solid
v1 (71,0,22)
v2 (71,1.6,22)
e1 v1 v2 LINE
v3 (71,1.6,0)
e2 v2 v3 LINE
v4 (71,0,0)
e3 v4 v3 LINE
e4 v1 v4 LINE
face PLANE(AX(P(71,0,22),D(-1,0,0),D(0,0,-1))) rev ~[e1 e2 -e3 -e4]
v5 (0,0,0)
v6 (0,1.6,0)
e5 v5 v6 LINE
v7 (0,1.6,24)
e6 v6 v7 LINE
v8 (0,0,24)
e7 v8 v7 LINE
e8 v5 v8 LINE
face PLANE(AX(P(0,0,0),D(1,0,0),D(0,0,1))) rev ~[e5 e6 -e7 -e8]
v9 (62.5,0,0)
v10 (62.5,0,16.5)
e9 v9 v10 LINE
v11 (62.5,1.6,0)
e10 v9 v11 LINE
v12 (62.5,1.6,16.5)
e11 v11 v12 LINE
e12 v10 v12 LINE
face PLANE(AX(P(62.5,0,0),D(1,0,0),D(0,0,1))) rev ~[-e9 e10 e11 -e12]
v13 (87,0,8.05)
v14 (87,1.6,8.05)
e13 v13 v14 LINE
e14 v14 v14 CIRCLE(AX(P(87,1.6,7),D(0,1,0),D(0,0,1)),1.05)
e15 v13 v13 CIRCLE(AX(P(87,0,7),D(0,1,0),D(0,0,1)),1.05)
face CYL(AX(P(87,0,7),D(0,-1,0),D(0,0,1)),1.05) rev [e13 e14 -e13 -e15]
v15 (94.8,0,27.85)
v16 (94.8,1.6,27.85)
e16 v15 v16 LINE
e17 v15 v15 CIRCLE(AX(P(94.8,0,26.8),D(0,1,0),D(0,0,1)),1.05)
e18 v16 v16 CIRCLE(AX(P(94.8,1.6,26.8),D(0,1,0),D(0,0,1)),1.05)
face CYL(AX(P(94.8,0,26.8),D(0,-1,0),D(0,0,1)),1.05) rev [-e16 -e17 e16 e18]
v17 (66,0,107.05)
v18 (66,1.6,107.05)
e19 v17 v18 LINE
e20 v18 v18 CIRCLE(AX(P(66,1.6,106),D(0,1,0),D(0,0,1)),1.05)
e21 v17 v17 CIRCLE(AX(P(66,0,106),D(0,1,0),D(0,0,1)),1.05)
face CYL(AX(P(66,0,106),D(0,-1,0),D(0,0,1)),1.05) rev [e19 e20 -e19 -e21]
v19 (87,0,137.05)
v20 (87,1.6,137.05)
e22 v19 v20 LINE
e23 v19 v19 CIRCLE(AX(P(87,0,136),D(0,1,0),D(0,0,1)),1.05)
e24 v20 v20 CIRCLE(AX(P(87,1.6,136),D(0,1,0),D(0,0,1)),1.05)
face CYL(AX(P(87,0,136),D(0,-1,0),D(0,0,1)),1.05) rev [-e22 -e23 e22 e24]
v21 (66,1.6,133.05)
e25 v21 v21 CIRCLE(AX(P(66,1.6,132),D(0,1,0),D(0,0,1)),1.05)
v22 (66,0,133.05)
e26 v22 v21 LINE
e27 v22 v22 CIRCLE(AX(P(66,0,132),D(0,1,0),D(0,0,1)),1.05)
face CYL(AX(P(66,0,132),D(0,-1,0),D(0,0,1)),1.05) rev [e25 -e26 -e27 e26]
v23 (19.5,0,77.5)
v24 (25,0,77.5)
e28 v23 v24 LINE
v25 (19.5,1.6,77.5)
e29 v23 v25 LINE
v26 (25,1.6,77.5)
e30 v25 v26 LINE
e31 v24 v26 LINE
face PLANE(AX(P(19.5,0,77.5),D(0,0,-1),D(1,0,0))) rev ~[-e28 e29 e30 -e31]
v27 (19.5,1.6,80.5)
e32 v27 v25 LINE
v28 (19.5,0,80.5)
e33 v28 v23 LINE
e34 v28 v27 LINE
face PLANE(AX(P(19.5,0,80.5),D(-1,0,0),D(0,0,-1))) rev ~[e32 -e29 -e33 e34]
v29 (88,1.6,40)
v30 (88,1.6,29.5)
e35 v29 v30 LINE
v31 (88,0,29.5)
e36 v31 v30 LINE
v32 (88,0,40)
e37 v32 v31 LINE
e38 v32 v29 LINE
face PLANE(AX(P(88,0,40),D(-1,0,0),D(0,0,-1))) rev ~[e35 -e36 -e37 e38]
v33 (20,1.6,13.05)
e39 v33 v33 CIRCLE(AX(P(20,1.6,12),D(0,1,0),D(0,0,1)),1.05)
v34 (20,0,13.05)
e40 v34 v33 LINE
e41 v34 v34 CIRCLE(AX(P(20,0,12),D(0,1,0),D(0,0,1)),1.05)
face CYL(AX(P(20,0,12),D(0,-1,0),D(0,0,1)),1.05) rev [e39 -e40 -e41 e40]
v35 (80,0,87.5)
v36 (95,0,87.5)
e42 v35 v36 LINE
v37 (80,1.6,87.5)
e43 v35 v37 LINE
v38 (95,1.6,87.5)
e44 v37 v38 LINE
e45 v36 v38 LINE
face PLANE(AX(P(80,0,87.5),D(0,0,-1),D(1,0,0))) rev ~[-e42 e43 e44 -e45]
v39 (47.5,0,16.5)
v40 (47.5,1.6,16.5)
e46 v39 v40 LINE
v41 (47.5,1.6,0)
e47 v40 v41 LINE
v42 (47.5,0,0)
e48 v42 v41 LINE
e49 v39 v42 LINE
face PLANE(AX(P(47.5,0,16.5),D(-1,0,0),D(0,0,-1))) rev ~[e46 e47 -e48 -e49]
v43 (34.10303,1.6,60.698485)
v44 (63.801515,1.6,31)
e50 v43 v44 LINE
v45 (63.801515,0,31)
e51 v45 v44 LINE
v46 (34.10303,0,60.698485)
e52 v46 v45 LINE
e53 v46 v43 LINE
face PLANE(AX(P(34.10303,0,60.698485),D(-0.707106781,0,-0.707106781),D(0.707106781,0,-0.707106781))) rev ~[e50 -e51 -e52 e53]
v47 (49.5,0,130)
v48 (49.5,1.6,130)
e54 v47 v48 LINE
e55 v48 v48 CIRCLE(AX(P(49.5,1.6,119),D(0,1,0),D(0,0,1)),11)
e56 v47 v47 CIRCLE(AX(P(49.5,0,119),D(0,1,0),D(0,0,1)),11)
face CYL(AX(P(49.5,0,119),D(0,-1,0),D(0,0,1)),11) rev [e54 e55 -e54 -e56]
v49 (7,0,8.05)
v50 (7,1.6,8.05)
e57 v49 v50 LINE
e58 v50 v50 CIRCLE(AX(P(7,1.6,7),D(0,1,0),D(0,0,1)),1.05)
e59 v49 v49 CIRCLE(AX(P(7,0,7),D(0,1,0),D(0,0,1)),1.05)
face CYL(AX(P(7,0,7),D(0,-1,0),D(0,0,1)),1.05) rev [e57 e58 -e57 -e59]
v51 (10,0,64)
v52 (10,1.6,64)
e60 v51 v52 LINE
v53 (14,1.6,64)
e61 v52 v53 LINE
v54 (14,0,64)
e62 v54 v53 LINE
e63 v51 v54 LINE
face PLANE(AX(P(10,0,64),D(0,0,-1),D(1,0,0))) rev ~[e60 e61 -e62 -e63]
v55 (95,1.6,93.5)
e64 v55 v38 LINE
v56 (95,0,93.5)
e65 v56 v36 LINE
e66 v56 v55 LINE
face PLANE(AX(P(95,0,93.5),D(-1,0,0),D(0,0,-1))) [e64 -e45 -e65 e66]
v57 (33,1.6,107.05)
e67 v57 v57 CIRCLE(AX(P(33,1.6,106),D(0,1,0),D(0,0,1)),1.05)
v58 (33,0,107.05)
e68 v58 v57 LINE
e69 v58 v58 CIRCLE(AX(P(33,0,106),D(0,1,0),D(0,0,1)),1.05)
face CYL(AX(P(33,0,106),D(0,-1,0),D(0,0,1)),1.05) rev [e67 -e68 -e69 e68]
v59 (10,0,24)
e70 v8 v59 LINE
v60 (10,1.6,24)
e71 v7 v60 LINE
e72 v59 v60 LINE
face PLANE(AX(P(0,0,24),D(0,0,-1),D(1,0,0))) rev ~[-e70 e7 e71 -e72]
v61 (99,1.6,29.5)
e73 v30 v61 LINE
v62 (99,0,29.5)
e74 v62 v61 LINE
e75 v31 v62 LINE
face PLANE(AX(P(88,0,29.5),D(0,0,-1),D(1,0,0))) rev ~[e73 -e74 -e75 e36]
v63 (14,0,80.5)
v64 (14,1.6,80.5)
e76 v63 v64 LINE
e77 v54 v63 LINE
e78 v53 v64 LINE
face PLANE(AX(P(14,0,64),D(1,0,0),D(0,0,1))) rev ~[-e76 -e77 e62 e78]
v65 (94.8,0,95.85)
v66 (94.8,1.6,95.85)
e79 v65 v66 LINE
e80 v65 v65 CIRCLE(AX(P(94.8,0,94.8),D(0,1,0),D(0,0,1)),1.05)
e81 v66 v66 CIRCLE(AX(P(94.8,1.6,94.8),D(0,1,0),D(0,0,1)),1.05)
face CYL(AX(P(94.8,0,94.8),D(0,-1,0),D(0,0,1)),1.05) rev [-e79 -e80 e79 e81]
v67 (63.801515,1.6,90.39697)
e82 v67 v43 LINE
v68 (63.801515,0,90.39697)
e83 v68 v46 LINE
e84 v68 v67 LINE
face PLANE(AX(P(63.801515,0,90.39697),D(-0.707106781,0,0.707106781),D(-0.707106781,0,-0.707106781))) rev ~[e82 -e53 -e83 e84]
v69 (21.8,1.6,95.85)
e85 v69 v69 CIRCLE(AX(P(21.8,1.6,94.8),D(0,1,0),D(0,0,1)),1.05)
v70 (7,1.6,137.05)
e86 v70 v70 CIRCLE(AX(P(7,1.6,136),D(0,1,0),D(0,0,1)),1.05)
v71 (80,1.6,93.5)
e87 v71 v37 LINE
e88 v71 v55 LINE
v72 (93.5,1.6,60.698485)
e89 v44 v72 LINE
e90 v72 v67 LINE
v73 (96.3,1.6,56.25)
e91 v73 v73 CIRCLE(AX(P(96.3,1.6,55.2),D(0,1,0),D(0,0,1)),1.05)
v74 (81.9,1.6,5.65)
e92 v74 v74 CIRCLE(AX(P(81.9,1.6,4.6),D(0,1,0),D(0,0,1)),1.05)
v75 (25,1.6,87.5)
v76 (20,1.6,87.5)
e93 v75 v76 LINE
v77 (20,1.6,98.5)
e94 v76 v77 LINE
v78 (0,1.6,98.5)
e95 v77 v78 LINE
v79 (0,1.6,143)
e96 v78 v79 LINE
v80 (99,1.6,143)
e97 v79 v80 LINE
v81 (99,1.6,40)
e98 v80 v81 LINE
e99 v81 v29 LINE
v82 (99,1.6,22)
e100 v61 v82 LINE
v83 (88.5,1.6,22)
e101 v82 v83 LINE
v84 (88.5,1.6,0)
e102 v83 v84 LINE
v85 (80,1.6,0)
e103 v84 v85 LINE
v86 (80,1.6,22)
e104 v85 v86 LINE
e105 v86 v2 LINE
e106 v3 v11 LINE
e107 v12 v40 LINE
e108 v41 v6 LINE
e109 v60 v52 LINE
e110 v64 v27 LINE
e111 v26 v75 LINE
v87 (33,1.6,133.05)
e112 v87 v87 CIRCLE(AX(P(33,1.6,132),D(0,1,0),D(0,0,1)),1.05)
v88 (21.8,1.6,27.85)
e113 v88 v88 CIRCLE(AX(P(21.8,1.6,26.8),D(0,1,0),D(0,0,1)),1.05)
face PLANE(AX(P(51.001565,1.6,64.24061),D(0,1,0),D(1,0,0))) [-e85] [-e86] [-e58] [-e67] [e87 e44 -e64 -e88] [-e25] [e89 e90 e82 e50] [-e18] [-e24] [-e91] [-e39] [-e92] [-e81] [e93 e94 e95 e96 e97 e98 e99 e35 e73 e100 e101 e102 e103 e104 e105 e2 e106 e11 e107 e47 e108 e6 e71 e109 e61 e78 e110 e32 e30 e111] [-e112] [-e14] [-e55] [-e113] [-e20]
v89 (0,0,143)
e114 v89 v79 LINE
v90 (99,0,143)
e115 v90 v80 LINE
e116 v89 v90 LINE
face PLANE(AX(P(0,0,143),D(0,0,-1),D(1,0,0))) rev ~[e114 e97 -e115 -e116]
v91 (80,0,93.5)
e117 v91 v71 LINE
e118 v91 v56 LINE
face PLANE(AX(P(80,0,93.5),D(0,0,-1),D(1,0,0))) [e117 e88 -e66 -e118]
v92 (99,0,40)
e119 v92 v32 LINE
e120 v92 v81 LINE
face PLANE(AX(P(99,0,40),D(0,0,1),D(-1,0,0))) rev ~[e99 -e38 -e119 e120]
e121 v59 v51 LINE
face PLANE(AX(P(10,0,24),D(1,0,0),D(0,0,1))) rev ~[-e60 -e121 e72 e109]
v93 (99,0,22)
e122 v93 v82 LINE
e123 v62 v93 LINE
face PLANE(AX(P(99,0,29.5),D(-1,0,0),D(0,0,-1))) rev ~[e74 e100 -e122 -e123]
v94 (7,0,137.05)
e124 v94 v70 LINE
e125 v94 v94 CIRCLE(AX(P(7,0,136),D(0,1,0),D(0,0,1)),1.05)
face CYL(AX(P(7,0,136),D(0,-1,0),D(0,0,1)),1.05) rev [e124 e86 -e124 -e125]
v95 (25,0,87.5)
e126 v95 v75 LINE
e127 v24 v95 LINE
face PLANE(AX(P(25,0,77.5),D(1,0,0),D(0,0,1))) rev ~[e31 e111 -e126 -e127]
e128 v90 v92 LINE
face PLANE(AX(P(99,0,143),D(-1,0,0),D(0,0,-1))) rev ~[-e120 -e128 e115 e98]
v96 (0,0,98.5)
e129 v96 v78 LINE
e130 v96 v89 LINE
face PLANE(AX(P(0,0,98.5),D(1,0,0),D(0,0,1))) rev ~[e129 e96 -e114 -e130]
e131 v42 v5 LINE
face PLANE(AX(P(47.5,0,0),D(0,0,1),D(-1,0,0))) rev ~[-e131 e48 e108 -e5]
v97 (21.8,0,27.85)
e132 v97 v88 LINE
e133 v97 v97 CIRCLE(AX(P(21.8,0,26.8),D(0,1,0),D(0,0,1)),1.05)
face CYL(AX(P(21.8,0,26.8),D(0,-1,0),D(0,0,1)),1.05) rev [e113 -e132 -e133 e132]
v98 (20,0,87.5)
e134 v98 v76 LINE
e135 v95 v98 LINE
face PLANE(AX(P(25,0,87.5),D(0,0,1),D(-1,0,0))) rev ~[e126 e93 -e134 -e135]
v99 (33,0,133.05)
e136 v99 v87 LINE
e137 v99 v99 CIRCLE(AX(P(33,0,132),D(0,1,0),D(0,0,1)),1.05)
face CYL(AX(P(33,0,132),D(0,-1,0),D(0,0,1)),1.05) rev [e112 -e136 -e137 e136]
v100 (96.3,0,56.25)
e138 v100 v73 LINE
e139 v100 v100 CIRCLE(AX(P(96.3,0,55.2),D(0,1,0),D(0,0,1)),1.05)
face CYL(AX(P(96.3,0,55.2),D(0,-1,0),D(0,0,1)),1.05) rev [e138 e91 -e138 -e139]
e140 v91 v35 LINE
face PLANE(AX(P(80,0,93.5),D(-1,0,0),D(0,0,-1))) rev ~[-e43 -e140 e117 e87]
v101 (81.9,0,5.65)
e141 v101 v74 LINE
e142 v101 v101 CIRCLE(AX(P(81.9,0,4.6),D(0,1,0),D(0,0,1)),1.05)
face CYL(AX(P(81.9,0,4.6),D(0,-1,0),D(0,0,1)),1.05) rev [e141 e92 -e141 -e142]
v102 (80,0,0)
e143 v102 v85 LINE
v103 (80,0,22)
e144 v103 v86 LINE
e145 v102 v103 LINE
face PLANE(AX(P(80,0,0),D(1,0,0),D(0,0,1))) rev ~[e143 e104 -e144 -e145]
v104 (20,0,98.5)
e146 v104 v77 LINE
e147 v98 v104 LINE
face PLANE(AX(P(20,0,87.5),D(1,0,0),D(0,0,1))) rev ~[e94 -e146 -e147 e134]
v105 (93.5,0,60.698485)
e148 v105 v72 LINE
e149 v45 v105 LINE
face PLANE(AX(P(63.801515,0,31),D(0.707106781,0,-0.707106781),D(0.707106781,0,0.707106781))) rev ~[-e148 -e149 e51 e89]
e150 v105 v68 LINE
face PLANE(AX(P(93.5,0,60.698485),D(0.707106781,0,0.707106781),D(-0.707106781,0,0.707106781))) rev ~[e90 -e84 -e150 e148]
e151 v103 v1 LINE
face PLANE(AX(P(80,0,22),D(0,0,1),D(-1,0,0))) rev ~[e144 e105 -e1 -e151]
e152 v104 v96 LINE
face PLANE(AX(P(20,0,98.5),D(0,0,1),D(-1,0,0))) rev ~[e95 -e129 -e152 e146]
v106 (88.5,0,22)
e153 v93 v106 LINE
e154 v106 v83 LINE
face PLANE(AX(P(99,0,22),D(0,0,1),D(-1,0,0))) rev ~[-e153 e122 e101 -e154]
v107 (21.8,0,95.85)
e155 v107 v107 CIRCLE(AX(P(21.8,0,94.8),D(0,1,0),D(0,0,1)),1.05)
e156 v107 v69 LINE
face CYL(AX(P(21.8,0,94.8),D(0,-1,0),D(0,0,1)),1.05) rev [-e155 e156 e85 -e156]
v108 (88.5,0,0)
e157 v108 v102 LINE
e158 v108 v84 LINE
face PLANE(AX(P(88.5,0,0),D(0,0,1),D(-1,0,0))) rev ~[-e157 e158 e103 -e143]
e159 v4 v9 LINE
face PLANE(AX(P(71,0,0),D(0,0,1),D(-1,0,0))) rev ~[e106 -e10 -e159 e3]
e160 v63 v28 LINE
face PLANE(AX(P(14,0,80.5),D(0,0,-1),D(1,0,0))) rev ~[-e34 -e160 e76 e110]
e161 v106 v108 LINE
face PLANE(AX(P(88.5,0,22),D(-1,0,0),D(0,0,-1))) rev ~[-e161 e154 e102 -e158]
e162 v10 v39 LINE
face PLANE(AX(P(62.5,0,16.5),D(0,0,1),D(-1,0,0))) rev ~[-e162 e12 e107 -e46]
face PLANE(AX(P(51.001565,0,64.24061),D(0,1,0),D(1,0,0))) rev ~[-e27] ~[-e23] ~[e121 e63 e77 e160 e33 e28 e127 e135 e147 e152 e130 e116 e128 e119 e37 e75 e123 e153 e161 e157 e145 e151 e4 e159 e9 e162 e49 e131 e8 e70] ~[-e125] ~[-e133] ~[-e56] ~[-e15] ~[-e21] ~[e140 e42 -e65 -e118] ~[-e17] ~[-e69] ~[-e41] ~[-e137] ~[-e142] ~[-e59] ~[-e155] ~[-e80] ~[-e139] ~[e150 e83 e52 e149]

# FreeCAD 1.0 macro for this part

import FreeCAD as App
import Part
import Sketcher
from FreeCAD import Vector
Q = App.Units.Quantity


def add_polygon(sketch, points):
    """Adds a closed chain of lines whose ends are joined by coincident constraints."""
    first, n = sketch.GeometryCount, len(points)
    for a, b in zip(points, points[1:] + points[:1]):
        sketch.addGeometry(Part.LineSegment(App.Vector(*a, 0), App.Vector(*b, 0)), False)
    for i in range(n):
        sketch.addConstraint(Sketcher.Constraint("Coincident", first + i, 2, first + (i + 1) % n, 1))

doc = App.newDocument("Part")
body = doc.addObject("PartDesign::Body", "Body")

sketch1 = body.newObject("Sketcher::SketchObject", "Sketch")
sketch1.AttachmentSupport = (doc.getObject("XZ_Plane"), [""])
sketch1.MapMode = "FlatFace"
add_polygon(sketch1, [(47.5, 0), (0, 0), (0, 24), (10, 24), (10, 64), (14, 64), (14, 80.5), (19.5, 80.5), (19.5, 77.5), (25, 77.5), (25, 87.5), (20, 87.5), (20, 98.5), (0, 98.5), (0, 143), (99, 143), (99, 40), (88, 40), (88, 29.5), (99, 29.5), (99, 22), (88.5, 22), (88.5, 0), (80, 0), (80, 22), (71, 22), (71, 0), (62.5, 0), (62.5, 16.5), (47.5, 16.5)])
sketch1.addGeometry(Part.Circle(Vector(7, 136, 0), Vector(0, 0, 1), 1.1), False)
sketch1.addGeometry(Part.Circle(Vector(33, 132, 0), Vector(0, 0, 1), 1.1), False)
sketch1.addGeometry(Part.Circle(Vector(33, 106, 0), Vector(0, 0, 1), 1.1), False)
sketch1.addGeometry(Part.Circle(Vector(49.5, 119, 0), Vector(0, 0, 1), 11), False)
sketch1.addGeometry(Part.Circle(Vector(21.8, 94.8, 0), Vector(0, 0, 1), 1.1), False)
sketch1.addGeometry(Part.Circle(Vector(66, 132, 0), Vector(0, 0, 1), 1.1), False)
sketch1.addGeometry(Part.Circle(Vector(66, 106, 0), Vector(0, 0, 1), 1.1), False)
sketch1.addGeometry(Part.Circle(Vector(87, 136, 0), Vector(0, 0, 1), 1.1), False)
add_polygon(sketch1, [(95, 93.5), (80, 93.5), (80, 87.5), (95, 87.5)])
sketch1.addGeometry(Part.Circle(Vector(94.8, 94.8, 0), Vector(0, 0, 1), 1.1), False)
sketch1.addGeometry(Part.Circle(Vector(21.8, 26.8, 0), Vector(0, 0, 1), 1.1), False)
sketch1.addGeometry(Part.Circle(Vector(7, 7, 0), Vector(0, 0, 1), 1.1), False)
sketch1.addGeometry(Part.Circle(Vector(20, 12, 0), Vector(0, 0, 1), 1.1), False)
add_polygon(sketch1, [(63.8, 90.4), (34.1, 60.7), (63.8, 31), (93.5, 60.7)])
sketch1.addGeometry(Part.Circle(Vector(96.3, 55.2, 0), Vector(0, 0, 1), 1.1), False)
sketch1.addGeometry(Part.Circle(Vector(94.8, 26.8, 0), Vector(0, 0, 1), 1.1), False)
sketch1.addGeometry(Part.Circle(Vector(81.9, 4.6, 0), Vector(0, 0, 1), 1.1), False)
sketch1.addGeometry(Part.Circle(Vector(87, 7, 0), Vector(0, 0, 1), 1.1), False)
sketch1.addConstraint(Sketcher.Constraint("Horizontal", 0))
sketch1.addConstraint(Sketcher.Constraint("Vertical", 1))
sketch1.addConstraint(Sketcher.Constraint("Horizontal", 2))
sketch1.addConstraint(Sketcher.Constraint("Vertical", 3))
sketch1.addConstraint(Sketcher.Constraint("Horizontal", 4))
sketch1.addConstraint(Sketcher.Constraint("Vertical", 5))
sketch1.addConstraint(Sketcher.Constraint("Horizontal", 6))
sketch1.addConstraint(Sketcher.Constraint("Vertical", 7))
sketch1.addConstraint(Sketcher.Constraint("Horizontal", 8))
sketch1.addConstraint(Sketcher.Constraint("Vertical", 9))
sketch1.addConstraint(Sketcher.Constraint("Horizontal", 10))
sketch1.addConstraint(Sketcher.Constraint("Vertical", 11))
sketch1.addConstraint(Sketcher.Constraint("Horizontal", 12))
sketch1.addConstraint(Sketcher.Constraint("Vertical", 13))
sketch1.addConstraint(Sketcher.Constraint("Horizontal", 14))
sketch1.addConstraint(Sketcher.Constraint("Vertical", 15))
sketch1.addConstraint(Sketcher.Constraint("Horizontal", 16))
sketch1.addConstraint(Sketcher.Constraint("Vertical", 17))
sketch1.addConstraint(Sketcher.Constraint("Horizontal", 18))
sketch1.addConstraint(Sketcher.Constraint("Vertical", 19))
sketch1.addConstraint(Sketcher.Constraint("Horizontal", 20))
sketch1.addConstraint(Sketcher.Constraint("Vertical", 21))
sketch1.addConstraint(Sketcher.Constraint("Horizontal", 22))
sketch1.addConstraint(Sketcher.Constraint("Vertical", 23))
sketch1.addConstraint(Sketcher.Constraint("Horizontal", 24))
sketch1.addConstraint(Sketcher.Constraint("Vertical", 25))
sketch1.addConstraint(Sketcher.Constraint("Horizontal", 26))
sketch1.addConstraint(Sketcher.Constraint("Vertical", 27))
sketch1.addConstraint(Sketcher.Constraint("Horizontal", 28))
sketch1.addConstraint(Sketcher.Constraint("Vertical", 29))
sketch1.addConstraint(Sketcher.Constraint("Horizontal", 38))
sketch1.addConstraint(Sketcher.Constraint("Vertical", 39))
sketch1.addConstraint(Sketcher.Constraint("Horizontal", 40))
sketch1.addConstraint(Sketcher.Constraint("Vertical", 41))
sketch1.addConstraint(Sketcher.Constraint("Coincident", 0, 2, -1, 1))
sketch1.addConstraint(Sketcher.Constraint("Equal", 30, 31))
sketch1.addConstraint(Sketcher.Constraint("Equal", 31, 32))
sketch1.addConstraint(Sketcher.Constraint("Equal", 32, 34))
sketch1.addConstraint(Sketcher.Constraint("Equal", 34, 35))
sketch1.addConstraint(Sketcher.Constraint("Equal", 35, 36))
sketch1.addConstraint(Sketcher.Constraint("Equal", 36, 37))
sketch1.addConstraint(Sketcher.Constraint("Equal", 37, 42))
sketch1.addConstraint(Sketcher.Constraint("Equal", 42, 43))
sketch1.addConstraint(Sketcher.Constraint("Equal", 43, 44))
sketch1.addConstraint(Sketcher.Constraint("Equal", 44, 45))
sketch1.addConstraint(Sketcher.Constraint("Equal", 45, 50))
sketch1.addConstraint(Sketcher.Constraint("Equal", 50, 51))
sketch1.addConstraint(Sketcher.Constraint("Equal", 51, 52))
sketch1.addConstraint(Sketcher.Constraint("Equal", 52, 53))
sketch1.addConstraint(Sketcher.Constraint("PointOnObject", 12, 2, -2))
sketch1.addConstraint(Sketcher.Constraint("PointOnObject", 21, 2, -1))
sketch1.addConstraint(Sketcher.Constraint("PointOnObject", 25, 2, -1))
sketch1.addConstraint(Sketcher.Constraint("Perpendicular", 46, 47))
sketch1.addConstraint(Sketcher.Constraint("Perpendicular", 47, 48))
sketch1.addConstraint(Sketcher.Constraint("Perpendicular", 48, 49))
sketch1.addConstraint(Sketcher.Constraint("Horizontal", 31, 3, 35, 3))
sketch1.addConstraint(Sketcher.Constraint("Horizontal", 32, 3, 36, 3))
sketch1.addConstraint(Sketcher.Constraint("Horizontal", 30, 3, 37, 3))
sketch1.addConstraint(Sketcher.Constraint("Horizontal", 34, 3, 42, 3))
sketch1.addConstraint(Sketcher.Constraint("Horizontal", 43, 3, 51, 3))
sketch1.addConstraint(Sketcher.Constraint("Horizontal", 44, 3, 53, 3))
sketch1.addConstraint(Sketcher.Constraint("Horizontal", 20, 2, 23, 2))
sketch1.addConstraint(Sketcher.Constraint("Horizontal", 10, 2, 39, 2))
sketch1.addConstraint(Sketcher.Constraint("Horizontal", 46, 2, 48, 2))
sketch1.addConstraint(Sketcher.Constraint("Vertical", 31, 3, 32, 3))
sketch1.addConstraint(Sketcher.Constraint("Vertical", 35, 3, 36, 3))
sketch1.addConstraint(Sketcher.Constraint("Vertical", 34, 3, 43, 3))
sketch1.addConstraint(Sketcher.Constraint("Vertical", 30, 3, 44, 3))
sketch1.addConstraint(Sketcher.Constraint("Vertical", 42, 3, 51, 3))
sketch1.addConstraint(Sketcher.Constraint("Vertical", 37, 3, 53, 3))
sketch1.addConstraint(Sketcher.Constraint("Vertical", 45, 3, 10, 2))
sketch1.addConstraint(Sketcher.Constraint("Vertical", 15, 2, 18, 2))
sketch1.addConstraint(Sketcher.Constraint("Vertical", 23, 2, 38, 2))
sketch1.addConstraint(Sketcher.Constraint("Vertical", 47, 2, 49, 2))
sketch1.addConstraint(Sketcher.Constraint("Equal", 6, 8))
sketch1.addConstraint(Sketcher.Constraint("Equal", 22, 26))
sketch1.addConstraint(Sketcher.Constraint("Equal", 28, 38))
sketch1.addConstraint(Sketcher.Constraint("Equal", 2, 9))
sketch1.addConstraint(Sketcher.Constraint("Equal", 18, 11))
sketch1.addConstraint(Sketcher.Constraint("Equal", 20, 17))
sketch1.addConstraint(Sketcher.Constraint("Equal", 5, 27))
sketch1.addConstraint(Sketcher.Constraint("Diameter", 33, Q("22 mm")))
sketch1.addConstraint(Sketcher.Constraint("Diameter", 30, Q("2.1 mm")))
sketch1.addConstraint(Sketcher.Constraint("DistanceX", 2, 1, 2, 2, Q("10 mm")))
sketch1.addConstraint(Sketcher.Constraint("DistanceX", 4, 1, 4, 2, Q("4 mm")))
sketch1.addConstraint(Sketcher.Constraint("DistanceX", 10, 2, 10, 1, Q("5 mm")))
sketch1.addConstraint(Sketcher.Constraint("DistanceX", 12, 2, 12, 1, Q("20 mm")))
sketch1.addConstraint(Sketcher.Constraint("DistanceX", 14, 1, 14, 2, Q("99 mm")))
sketch1.addConstraint(Sketcher.Constraint("DistanceX", 16, 2, 16, 1, Q("11 mm")))
sketch1.addConstraint(Sketcher.Constraint("DistanceX", 24, 2, 24, 1, Q("9 mm")))
sketch1.addConstraint(Sketcher.Constraint("DistanceX", 28, 2, 28, 1, Q("15 mm")))
sketch1.addConstraint(Sketcher.Constraint("DistanceY", 1, 1, 1, 2, Q("24 mm")))
sketch1.addConstraint(Sketcher.Constraint("DistanceY", 3, 1, 3, 2, Q("40 mm")))
sketch1.addConstraint(Sketcher.Constraint("DistanceY", 7, 2, 7, 1, Q("3 mm")))
sketch1.addConstraint(Sketcher.Constraint("DistanceY", 15, 2, 15, 1, Q("103 mm")))
sketch1.addConstraint(Sketcher.Constraint("DistanceY", 21, 2, 21, 1, Q("22 mm")))
sketch1.addConstraint(Sketcher.Constraint("DistanceY", 39, 2, 39, 1, Q("6 mm")))
sketch1.addConstraint(Sketcher.Constraint("Distance", 46, Q("42 mm")))
sketch1.addConstraint(Sketcher.Constraint("DistanceX", 0, 2, 0, 1, Q("47.5 mm")))
sketch1.addConstraint(Sketcher.Constraint("DistanceX", 20, 2, 20, 1, Q("10.5 mm")))
sketch1.addConstraint(Sketcher.Constraint("DistanceY", 5, 1, 5, 2, Q("16.5 mm")))
sketch1.addConstraint(Sketcher.Constraint("DistanceY", 13, 1, 13, 2, Q("44.5 mm")))
sketch1.addConstraint(Sketcher.Constraint("DistanceX", -1, 1, 30, 3, Q("7 mm")))
sketch1.addConstraint(Sketcher.Constraint("DistanceY", -1, 1, 30, 3, Q("136 mm")))
sketch1.addConstraint(Sketcher.Constraint("DistanceX", -1, 1, 31, 3, Q("33 mm")))
sketch1.addConstraint(Sketcher.Constraint("DistanceY", -1, 1, 31, 3, Q("132 mm")))
sketch1.addConstraint(Sketcher.Constraint("DistanceY", -1, 1, 32, 3, Q("106 mm")))
sketch1.addConstraint(Sketcher.Constraint("DistanceY", -1, 1, 33, 3, Q("119 mm")))
sketch1.addConstraint(Sketcher.Constraint("DistanceX", -1, 1, 35, 3, Q("66 mm")))
sketch1.addConstraint(Sketcher.Constraint("DistanceX", -1, 1, 37, 3, Q("87 mm")))
sketch1.addConstraint(Sketcher.Constraint("DistanceY", -1, 1, 44, 3, Q("7 mm")))
sketch1.addConstraint(Sketcher.Constraint("DistanceY", -1, 1, 45, 3, Q("12 mm")))
sketch1.addConstraint(Sketcher.Constraint("DistanceY", -1, 1, 47, 2, Q("31 mm")))
sketch1.addConstraint(Sketcher.Constraint("DistanceY", 43, 3, 34, 3, Q("68 mm")))
sketch1.addConstraint(Sketcher.Constraint("DistanceX", 43, 3, 42, 3, Q("73 mm")))
sketch1.addConstraint(Sketcher.Constraint("DistanceX", -1, 1, 33, 3, Q("49.5 mm")))
sketch1.addConstraint(Sketcher.Constraint("DistanceX", -1, 1, 34, 3, Q("21.8 mm")))
sketch1.addConstraint(Sketcher.Constraint("DistanceY", -1, 1, 34, 3, Q("94.8 mm")))
sketch1.addConstraint(Sketcher.Constraint("DistanceX", -1, 1, 50, 3, Q("96.3 mm")))
sketch1.addConstraint(Sketcher.Constraint("DistanceY", -1, 1, 50, 3, Q("55.2 mm")))
sketch1.addConstraint(Sketcher.Constraint("DistanceX", -1, 1, 52, 3, Q("81.9 mm")))
sketch1.addConstraint(Sketcher.Constraint("DistanceY", -1, 1, 52, 3, Q("4.6 mm")))
sketch1.addConstraint(Sketcher.Constraint("DistanceX", -1, 1, 48, 2, Q("93.5 mm")))
pad1 = body.newObject("PartDesign::Pad", "Pad")
pad1.Profile = sketch1
pad1.Length = 1.6
pad1.Reversed = True

doc.recompute()
